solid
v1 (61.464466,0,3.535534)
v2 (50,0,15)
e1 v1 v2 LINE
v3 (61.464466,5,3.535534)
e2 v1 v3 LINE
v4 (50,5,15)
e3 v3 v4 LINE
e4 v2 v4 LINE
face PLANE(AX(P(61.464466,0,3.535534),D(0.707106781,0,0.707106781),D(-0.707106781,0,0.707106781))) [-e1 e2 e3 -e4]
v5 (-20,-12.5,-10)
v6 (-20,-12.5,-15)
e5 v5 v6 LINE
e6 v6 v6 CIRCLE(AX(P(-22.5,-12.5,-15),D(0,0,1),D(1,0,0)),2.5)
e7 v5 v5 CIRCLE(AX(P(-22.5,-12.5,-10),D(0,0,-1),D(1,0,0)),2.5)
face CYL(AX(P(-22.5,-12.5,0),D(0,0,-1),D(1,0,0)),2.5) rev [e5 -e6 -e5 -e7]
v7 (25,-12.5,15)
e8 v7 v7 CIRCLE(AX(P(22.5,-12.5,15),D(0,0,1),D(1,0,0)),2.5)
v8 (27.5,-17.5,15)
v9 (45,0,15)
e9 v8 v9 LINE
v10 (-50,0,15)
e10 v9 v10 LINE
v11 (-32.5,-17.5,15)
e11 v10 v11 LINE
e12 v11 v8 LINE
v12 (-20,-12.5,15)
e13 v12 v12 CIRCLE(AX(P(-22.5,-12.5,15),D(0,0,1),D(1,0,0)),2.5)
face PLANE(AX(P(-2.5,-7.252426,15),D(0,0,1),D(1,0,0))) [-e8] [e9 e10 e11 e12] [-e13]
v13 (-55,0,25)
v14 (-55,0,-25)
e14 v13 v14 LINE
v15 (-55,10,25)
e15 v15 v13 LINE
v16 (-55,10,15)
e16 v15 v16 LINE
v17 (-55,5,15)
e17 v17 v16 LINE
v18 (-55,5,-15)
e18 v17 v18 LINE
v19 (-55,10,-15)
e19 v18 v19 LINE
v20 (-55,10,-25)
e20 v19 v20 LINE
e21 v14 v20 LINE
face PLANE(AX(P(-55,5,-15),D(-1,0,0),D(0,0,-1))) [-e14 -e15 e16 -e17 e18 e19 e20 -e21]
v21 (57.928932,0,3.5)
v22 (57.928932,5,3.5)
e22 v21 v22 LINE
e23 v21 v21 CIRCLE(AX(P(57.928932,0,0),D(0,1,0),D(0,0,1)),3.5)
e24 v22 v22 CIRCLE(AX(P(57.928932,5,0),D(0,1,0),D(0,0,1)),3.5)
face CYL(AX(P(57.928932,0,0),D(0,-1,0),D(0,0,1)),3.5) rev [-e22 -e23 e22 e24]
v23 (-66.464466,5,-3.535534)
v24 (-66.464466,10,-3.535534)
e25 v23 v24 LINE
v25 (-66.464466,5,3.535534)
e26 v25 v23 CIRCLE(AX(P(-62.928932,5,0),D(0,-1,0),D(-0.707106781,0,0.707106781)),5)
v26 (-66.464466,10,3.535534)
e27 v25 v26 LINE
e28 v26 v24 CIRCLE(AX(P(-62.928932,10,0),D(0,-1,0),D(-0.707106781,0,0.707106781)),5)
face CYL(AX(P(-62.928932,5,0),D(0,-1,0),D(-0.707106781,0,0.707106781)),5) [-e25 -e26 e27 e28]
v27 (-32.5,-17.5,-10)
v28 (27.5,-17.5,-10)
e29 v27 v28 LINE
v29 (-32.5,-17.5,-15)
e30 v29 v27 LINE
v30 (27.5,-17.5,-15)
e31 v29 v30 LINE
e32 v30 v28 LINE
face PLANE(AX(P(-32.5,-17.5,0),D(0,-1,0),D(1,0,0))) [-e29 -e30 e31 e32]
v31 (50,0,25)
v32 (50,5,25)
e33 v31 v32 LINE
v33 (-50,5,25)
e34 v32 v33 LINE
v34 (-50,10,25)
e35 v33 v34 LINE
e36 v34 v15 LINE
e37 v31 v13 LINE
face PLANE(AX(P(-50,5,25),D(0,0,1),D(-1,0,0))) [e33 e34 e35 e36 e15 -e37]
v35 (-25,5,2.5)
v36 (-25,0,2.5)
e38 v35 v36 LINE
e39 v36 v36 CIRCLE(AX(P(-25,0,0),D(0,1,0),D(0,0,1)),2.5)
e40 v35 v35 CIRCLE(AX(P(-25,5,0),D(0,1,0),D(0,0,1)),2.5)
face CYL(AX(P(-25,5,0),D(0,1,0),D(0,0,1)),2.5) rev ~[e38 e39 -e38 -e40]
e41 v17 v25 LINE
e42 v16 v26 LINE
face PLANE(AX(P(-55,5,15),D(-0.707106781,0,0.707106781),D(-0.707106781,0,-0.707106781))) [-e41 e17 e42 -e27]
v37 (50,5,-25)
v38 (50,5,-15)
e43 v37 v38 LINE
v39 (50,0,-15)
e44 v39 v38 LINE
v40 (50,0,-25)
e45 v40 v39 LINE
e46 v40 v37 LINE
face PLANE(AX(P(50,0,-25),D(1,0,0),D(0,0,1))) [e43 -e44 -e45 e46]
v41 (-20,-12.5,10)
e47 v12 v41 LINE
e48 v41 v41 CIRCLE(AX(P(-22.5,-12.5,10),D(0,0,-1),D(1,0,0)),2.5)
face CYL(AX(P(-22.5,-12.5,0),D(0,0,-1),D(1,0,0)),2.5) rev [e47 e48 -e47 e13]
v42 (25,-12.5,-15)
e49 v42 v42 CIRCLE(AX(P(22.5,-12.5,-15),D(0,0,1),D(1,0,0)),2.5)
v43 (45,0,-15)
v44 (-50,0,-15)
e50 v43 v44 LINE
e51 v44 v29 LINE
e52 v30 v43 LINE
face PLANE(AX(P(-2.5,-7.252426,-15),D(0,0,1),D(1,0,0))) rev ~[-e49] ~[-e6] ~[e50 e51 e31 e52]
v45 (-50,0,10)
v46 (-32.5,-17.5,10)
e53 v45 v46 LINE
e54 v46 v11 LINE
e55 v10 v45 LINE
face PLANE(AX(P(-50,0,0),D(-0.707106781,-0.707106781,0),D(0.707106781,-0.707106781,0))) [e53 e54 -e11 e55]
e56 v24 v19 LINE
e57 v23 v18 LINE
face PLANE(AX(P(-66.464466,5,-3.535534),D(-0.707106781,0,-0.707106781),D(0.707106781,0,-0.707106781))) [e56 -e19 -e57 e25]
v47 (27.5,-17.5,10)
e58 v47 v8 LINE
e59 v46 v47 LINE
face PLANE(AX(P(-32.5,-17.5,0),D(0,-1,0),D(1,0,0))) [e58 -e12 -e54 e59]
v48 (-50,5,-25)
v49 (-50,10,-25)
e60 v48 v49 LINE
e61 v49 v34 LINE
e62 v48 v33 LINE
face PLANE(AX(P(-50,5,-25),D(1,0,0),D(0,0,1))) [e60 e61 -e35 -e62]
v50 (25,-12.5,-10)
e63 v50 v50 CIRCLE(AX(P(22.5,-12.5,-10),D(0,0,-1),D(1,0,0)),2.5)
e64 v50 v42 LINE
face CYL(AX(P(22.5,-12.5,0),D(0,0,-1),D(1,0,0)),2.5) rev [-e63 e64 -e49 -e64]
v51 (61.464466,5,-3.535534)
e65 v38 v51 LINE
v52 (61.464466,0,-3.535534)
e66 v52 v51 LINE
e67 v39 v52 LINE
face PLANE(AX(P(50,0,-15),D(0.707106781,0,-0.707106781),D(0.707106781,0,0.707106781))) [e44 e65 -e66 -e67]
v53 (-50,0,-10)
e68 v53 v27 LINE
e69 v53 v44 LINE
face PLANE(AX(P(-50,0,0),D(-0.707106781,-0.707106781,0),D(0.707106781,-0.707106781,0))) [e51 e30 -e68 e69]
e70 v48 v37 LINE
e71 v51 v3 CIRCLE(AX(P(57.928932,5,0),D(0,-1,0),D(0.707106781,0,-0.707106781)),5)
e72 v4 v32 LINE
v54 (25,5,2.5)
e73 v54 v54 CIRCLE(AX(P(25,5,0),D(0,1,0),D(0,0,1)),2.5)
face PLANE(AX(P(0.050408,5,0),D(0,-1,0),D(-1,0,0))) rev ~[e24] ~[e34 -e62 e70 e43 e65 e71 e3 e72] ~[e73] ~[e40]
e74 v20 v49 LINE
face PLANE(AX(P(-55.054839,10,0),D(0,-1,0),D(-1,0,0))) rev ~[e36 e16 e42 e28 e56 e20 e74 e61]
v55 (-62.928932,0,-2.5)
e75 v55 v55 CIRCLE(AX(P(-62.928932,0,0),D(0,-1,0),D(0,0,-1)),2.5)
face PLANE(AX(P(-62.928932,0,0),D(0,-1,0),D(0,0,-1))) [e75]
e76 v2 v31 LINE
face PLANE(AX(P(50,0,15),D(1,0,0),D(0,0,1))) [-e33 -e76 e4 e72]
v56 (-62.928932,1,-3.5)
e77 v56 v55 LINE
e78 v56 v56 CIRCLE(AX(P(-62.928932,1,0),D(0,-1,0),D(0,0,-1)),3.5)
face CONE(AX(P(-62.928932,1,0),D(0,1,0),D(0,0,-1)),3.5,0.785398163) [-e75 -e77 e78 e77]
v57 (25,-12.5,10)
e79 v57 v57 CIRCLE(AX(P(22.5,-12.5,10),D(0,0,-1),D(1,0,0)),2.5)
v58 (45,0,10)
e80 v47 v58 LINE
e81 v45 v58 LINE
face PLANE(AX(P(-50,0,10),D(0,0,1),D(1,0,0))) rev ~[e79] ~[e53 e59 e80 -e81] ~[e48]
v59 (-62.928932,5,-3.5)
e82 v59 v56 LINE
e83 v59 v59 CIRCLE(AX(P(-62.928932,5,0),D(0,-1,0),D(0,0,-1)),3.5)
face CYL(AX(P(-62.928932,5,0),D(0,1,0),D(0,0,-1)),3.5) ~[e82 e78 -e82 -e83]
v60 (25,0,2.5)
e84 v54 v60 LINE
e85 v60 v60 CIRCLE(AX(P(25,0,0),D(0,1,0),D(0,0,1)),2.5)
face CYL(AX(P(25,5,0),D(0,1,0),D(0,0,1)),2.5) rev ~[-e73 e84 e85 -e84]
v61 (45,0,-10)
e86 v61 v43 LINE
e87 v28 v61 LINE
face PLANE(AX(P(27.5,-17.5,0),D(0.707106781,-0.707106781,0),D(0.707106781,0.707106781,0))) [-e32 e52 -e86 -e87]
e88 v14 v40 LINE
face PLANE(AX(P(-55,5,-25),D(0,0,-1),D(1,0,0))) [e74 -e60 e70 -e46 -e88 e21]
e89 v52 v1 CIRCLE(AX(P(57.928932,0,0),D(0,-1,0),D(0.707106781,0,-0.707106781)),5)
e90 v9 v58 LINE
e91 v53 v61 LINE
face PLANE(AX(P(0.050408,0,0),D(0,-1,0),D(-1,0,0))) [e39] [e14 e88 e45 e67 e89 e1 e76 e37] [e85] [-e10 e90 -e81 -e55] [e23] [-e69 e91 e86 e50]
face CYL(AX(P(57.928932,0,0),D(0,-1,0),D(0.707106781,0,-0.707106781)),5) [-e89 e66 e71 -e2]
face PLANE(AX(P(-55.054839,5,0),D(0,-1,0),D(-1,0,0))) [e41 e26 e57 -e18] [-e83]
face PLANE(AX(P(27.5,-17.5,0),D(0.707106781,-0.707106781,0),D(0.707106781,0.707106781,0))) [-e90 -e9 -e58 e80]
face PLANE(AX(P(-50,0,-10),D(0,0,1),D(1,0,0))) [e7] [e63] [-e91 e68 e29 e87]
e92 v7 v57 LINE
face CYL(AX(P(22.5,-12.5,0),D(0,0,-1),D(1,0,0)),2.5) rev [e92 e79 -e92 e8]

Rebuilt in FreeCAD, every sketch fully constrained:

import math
import FreeCAD as App
import Part
import Sketcher
from FreeCAD import Vector
Q = App.Units.Quantity


def edges_at(feature, points):
    """Names of the edges that pass closest to the given points."""
    edges = feature.Shape.Edges
    near = lambda p: min(range(len(edges)), key=lambda i: edges[i].distToShape(Part.Vertex(*p))[0])
    return sorted({f"Edge{near(p) + 1}" for p in points})


def add_polygon(sketch, points):
    """Adds a closed chain of lines whose ends are joined by coincident constraints."""
    first, n = sketch.GeometryCount, len(points)
    for a, b in zip(points, points[1:] + points[:1]):
        sketch.addGeometry(Part.LineSegment(App.Vector(*a, 0), App.Vector(*b, 0)), False)
    for i in range(n):
        sketch.addConstraint(Sketcher.Constraint("Coincident", first + i, 2, first + (i + 1) % n, 1))

doc = App.newDocument("Part")
body = doc.addObject("PartDesign::Body", "Body")

sketch1 = body.newObject("Sketcher::SketchObject", "Sketch")
sketch1.AttachmentSupport = (doc.getObject("XZ_Plane"), [""])
sketch1.MapMode = "FlatFace"
sketch1.addGeometry(Part.LineSegment(Vector(61.5, -3.5, 0), Vector(50, -15, 0)), False)
sketch1.addGeometry(Part.LineSegment(Vector(50, -15, 0), Vector(50, -25, 0)), False)
sketch1.addGeometry(Part.LineSegment(Vector(50, -25, 0), Vector(-55, -25, 0)), False)
sketch1.addGeometry(Part.LineSegment(Vector(-55, -25, 0), Vector(-55, 25, 0)), False)
sketch1.addGeometry(Part.LineSegment(Vector(-55, 25, 0), Vector(50, 25, 0)), False)
sketch1.addGeometry(Part.LineSegment(Vector(50, 25, 0), Vector(50, 15, 0)), False)
sketch1.addGeometry(Part.LineSegment(Vector(50, 15, 0), Vector(61.5, 3.5, 0)), False)
sketch1.addGeometry(Part.ArcOfCircle(Part.Circle(Vector(57.9, 0, 0), Vector(0, 0, 1), 5), math.radians(-45), math.radians(45)), False)
sketch1.addGeometry(Part.Circle(Vector(57.9, 0, 0), Vector(0, 0, 1), 3.5), False)
sketch1.addConstraint(Sketcher.Constraint("Coincident", 0, 2, 1, 1))
sketch1.addConstraint(Sketcher.Constraint("Coincident", 1, 2, 2, 1))
sketch1.addConstraint(Sketcher.Constraint("Coincident", 2, 2, 3, 1))
sketch1.addConstraint(Sketcher.Constraint("Coincident", 3, 2, 4, 1))
sketch1.addConstraint(Sketcher.Constraint("Coincident", 4, 2, 5, 1))
sketch1.addConstraint(Sketcher.Constraint("Coincident", 5, 2, 6, 1))
sketch1.addConstraint(Sketcher.Constraint("Tangent", 6, 2, 7, 2))
sketch1.addConstraint(Sketcher.Constraint("Tangent", 7, 1, 0, 1))
sketch1.addConstraint(Sketcher.Constraint("Vertical", 1))
sketch1.addConstraint(Sketcher.Constraint("Horizontal", 2))
sketch1.addConstraint(Sketcher.Constraint("Vertical", 3))
sketch1.addConstraint(Sketcher.Constraint("Horizontal", 4))
sketch1.addConstraint(Sketcher.Constraint("Vertical", 5))
sketch1.addConstraint(Sketcher.Constraint("Coincident", 8, 3, 7, 3))
sketch1.addConstraint(Sketcher.Constraint("Symmetric", 1, 2, 4, 2, -1))
sketch1.addConstraint(Sketcher.Constraint("Symmetric", 6, 2, 7, 1, -1))
sketch1.addConstraint(Sketcher.Constraint("Perpendicular", 0, 6))
sketch1.addConstraint(Sketcher.Constraint("Diameter", 8, Q("7 mm")))
sketch1.addConstraint(Sketcher.Constraint("Radius", 7, Q("5 mm")))
sketch1.addConstraint(Sketcher.Constraint("DistanceX", 2, 2, 2, 1, Q("105 mm")))
sketch1.addConstraint(Sketcher.Constraint("DistanceY", 1, 2, 1, 1, Q("10 mm")))
sketch1.addConstraint(Sketcher.Constraint("DistanceY", 3, 1, 3, 2, Q("50 mm")))
sketch1.addConstraint(Sketcher.Constraint("DistanceX", -1, 1, 0, 2, Q("50 mm")))
pad1 = body.newObject("PartDesign::Pad", "Pad")
pad1.Profile = sketch1
pad1.Length = 5
pad1.Reversed = True

sketch2 = body.newObject("Sketcher::SketchObject", "Sketch001")
sketch2.AttachmentSupport = (doc.getObject("XZ_Plane"), [""])
sketch2.MapMode = "FlatFace"
sketch2.AttachmentOffset = App.Placement(Vector(0, 0, -5), App.Rotation())
sketch2.addGeometry(Part.LineSegment(Vector(-50, 25, 0), Vector(-50, -25, 0)), False)
sketch2.addGeometry(Part.LineSegment(Vector(-50, -25, 0), Vector(-55, -25, 0)), False)
sketch2.addGeometry(Part.LineSegment(Vector(-55, -25, 0), Vector(-55, -15, 0)), False)
sketch2.addGeometry(Part.LineSegment(Vector(-55, -15, 0), Vector(-66, -4, 0)), False)
sketch2.addGeometry(Part.ArcOfCircle(Part.Circle(Vector(-63, 0, 0), Vector(0, 0, 1), 5), math.radians(135), math.radians(225)), False)
sketch2.addGeometry(Part.LineSegment(Vector(-66, 4, 0), Vector(-55, 15, 0)), False)
sketch2.addGeometry(Part.LineSegment(Vector(-55, 15, 0), Vector(-55, 25, 0)), False)
sketch2.addGeometry(Part.LineSegment(Vector(-55, 25, 0), Vector(-50, 25, 0)), False)
sketch2.addConstraint(Sketcher.Constraint("Coincident", 0, 2, 1, 1))
sketch2.addConstraint(Sketcher.Constraint("Coincident", 1, 2, 2, 1))
sketch2.addConstraint(Sketcher.Constraint("Coincident", 2, 2, 3, 1))
sketch2.addConstraint(Sketcher.Constraint("Tangent", 3, 2, 4, 2))
sketch2.addConstraint(Sketcher.Constraint("Tangent", 4, 1, 5, 1))
sketch2.addConstraint(Sketcher.Constraint("Coincident", 5, 2, 6, 1))
sketch2.addConstraint(Sketcher.Constraint("Coincident", 6, 2, 7, 1))
sketch2.addConstraint(Sketcher.Constraint("Coincident", 7, 2, 0, 1))
sketch2.addConstraint(Sketcher.Constraint("Vertical", 0))
sketch2.addConstraint(Sketcher.Constraint("Horizontal", 1))
sketch2.addConstraint(Sketcher.Constraint("Vertical", 2))
sketch2.addConstraint(Sketcher.Constraint("Vertical", 6))
sketch2.addConstraint(Sketcher.Constraint("Horizontal", 7))
sketch2.addConstraint(Sketcher.Constraint("Symmetric", 3, 2, 4, 1, -1))
sketch2.addConstraint(Sketcher.Constraint("Symmetric", 1, 2, 6, 2, -1))
sketch2.addConstraint(Sketcher.Constraint("Perpendicular", 3, 5))
sketch2.addConstraint(Sketcher.Constraint("Radius", 4, Q("5 mm")))
sketch2.addConstraint(Sketcher.Constraint("DistanceX", 1, 2, 1, 1, Q("5 mm")))
sketch2.addConstraint(Sketcher.Constraint("DistanceY", 0, 2, 0, 1, Q("50 mm")))
sketch2.addConstraint(Sketcher.Constraint("DistanceY", 2, 1, 2, 2, Q("10 mm")))
sketch2.addConstraint(Sketcher.Constraint("DistanceX", 0, 2, -1, 1, Q("50 mm")))
pad2 = body.newObject("PartDesign::Pad", "Pad001")
pad2.Profile = sketch2
pad2.Length = 5
pad2.Reversed = True

sketch3 = body.newObject("Sketcher::SketchObject", "Sketch002")
sketch3.AttachmentSupport = (doc.getObject("XZ_Plane"), [""])
sketch3.MapMode = "FlatFace"
sketch3.AttachmentOffset = App.Placement(Vector(0, 0, -5), App.Rotation())
sketch3.addGeometry(Part.Circle(Vector(-62.9, 0, 0), Vector(0, 0, 1), 3.5), False)
sketch3.addConstraint(Sketcher.Constraint("PointOnObject", 0, 3, -1))
sketch3.addConstraint(Sketcher.Constraint("Diameter", 0, Q("7 mm")))
sketch3.addConstraint(Sketcher.Constraint("DistanceX", 0, 3, -1, 1, Q("62.928932 mm")))
pad3 = body.newObject("PartDesign::Pad", "Pad002")
pad3.Profile = sketch3
pad3.Length = 5

sketch4 = body.newObject("Sketcher::SketchObject", "Sketch003")
sketch4.AttachmentSupport = (doc.getObject("XY_Plane"), [""])
sketch4.MapMode = "FlatFace"
add_polygon(sketch4, [(-50, 0), (-32.5, -17.5), (27.5, -17.5), (45, 0)])
sketch4.addGeometry(Part.Circle(Vector(-22.5, -12.5, 0), Vector(0, 0, 1), 2.5), False)
sketch4.addGeometry(Part.Circle(Vector(22.5, -12.5, 0), Vector(0, 0, 1), 2.5), False)
sketch4.addConstraint(Sketcher.Constraint("Horizontal", 1))
sketch4.addConstraint(Sketcher.Constraint("Horizontal", 3))
sketch4.addConstraint(Sketcher.Constraint("Equal", 4, 5))
sketch4.addConstraint(Sketcher.Constraint("Symmetric", 4, 3, 5, 3, -2))
sketch4.addConstraint(Sketcher.Constraint("PointOnObject", 2, 2, -1))
sketch4.addConstraint(Sketcher.Constraint("Perpendicular", 0, 2))
sketch4.addConstraint(Sketcher.Constraint("Equal", 0, 2))
sketch4.addConstraint(Sketcher.Constraint("Diameter", 4, Q("5 mm")))
sketch4.addConstraint(Sketcher.Constraint("DistanceX", 1, 1, 1, 2, Q("60 mm")))
sketch4.addConstraint(Sketcher.Constraint("DistanceX", 3, 2, 3, 1, Q("95 mm")))
sketch4.addConstraint(Sketcher.Constraint("DistanceX", -1, 1, 2, 2, Q("45 mm")))
sketch4.addConstraint(Sketcher.Constraint("DistanceX", 4, 3, 5, 3, Q("45 mm")))
sketch4.addConstraint(Sketcher.Constraint("DistanceY", 0, 2, 4, 3, Q("5 mm")))
pad4 = body.newObject("PartDesign::Pad", "Pad003")
pad4.Profile = sketch4
pad4.Length = 30
pad4.Midplane = True

sketch5 = body.newObject("Sketcher::SketchObject", "Sketch004")
sketch5.AttachmentSupport = (doc.getObject("XZ_Plane"), [""])
sketch5.MapMode = "FlatFace"
add_polygon(sketch5, [(-50, 10), (-50, -10), (50, -10), (50, 10)])
sketch5.addConstraint(Sketcher.Constraint("Vertical", 0))
sketch5.addConstraint(Sketcher.Constraint("Horizontal", 1))
sketch5.addConstraint(Sketcher.Constraint("Vertical", 2))
sketch5.addConstraint(Sketcher.Constraint("Horizontal", 3))
sketch5.addConstraint(Sketcher.Constraint("Symmetric", 0, 2, 2, 2, -1, 1))
sketch5.addConstraint(Sketcher.Constraint("DistanceX", 1, 1, 1, 2, Q("100 mm")))
sketch5.addConstraint(Sketcher.Constraint("DistanceY", 0, 2, 0, 1, Q("20 mm")))
pocket1 = body.newObject("PartDesign::Pocket", "Pocket")
pocket1.Profile = sketch5
pocket1.Type = "UpToFirst"
pocket1.Reversed = True

sketch6 = body.newObject("Sketcher::SketchObject", "Sketch005")
sketch6.AttachmentSupport = (doc.getObject("XZ_Plane"), [""])
sketch6.MapMode = "FlatFace"
sketch6.AttachmentOffset = App.Placement(Vector(0, 0, -5), App.Rotation())
sketch6.addGeometry(Part.Circle(Vector(25, 0, 0), Vector(0, 0, 1), 2.5), False)
sketch6.addConstraint(Sketcher.Constraint("PointOnObject", 0, 3, -1))
sketch6.addConstraint(Sketcher.Constraint("Diameter", 0, Q("5 mm")))
sketch6.addConstraint(Sketcher.Constraint("DistanceX", -1, 1, 0, 3, Q("25 mm")))
pocket2 = body.newObject("PartDesign::Pocket", "Pocket001")
pocket2.Profile = sketch6
pocket2.Type = "UpToFirst"
pocket2.Reversed = True

sketch7 = body.newObject("Sketcher::SketchObject", "Sketch006")
sketch7.AttachmentSupport = (doc.getObject("XZ_Plane"), [""])
sketch7.MapMode = "FlatFace"
sketch7.AttachmentOffset = App.Placement(Vector(0, 0, -5), App.Rotation())
sketch7.addGeometry(Part.Circle(Vector(-25, 0, 0), Vector(0, 0, 1), 2.5), False)
sketch7.addConstraint(Sketcher.Constraint("PointOnObject", 0, 3, -1))
sketch7.addConstraint(Sketcher.Constraint("Diameter", 0, Q("5 mm")))
sketch7.addConstraint(Sketcher.Constraint("DistanceX", 0, 3, -1, 1, Q("25 mm")))
pocket3 = body.newObject("PartDesign::Pocket", "Pocket002")
pocket3.Profile = sketch7
pocket3.Type = "UpToFirst"
pocket3.Reversed = True
doc.recompute()

chamfer = body.newObject("PartDesign::Chamfer", "Chamfer")
chamfer.Base = (pocket3, edges_at(pocket3, [(-62.929, 0, 3.5)]))
chamfer.Size = 1

doc.recompute()
